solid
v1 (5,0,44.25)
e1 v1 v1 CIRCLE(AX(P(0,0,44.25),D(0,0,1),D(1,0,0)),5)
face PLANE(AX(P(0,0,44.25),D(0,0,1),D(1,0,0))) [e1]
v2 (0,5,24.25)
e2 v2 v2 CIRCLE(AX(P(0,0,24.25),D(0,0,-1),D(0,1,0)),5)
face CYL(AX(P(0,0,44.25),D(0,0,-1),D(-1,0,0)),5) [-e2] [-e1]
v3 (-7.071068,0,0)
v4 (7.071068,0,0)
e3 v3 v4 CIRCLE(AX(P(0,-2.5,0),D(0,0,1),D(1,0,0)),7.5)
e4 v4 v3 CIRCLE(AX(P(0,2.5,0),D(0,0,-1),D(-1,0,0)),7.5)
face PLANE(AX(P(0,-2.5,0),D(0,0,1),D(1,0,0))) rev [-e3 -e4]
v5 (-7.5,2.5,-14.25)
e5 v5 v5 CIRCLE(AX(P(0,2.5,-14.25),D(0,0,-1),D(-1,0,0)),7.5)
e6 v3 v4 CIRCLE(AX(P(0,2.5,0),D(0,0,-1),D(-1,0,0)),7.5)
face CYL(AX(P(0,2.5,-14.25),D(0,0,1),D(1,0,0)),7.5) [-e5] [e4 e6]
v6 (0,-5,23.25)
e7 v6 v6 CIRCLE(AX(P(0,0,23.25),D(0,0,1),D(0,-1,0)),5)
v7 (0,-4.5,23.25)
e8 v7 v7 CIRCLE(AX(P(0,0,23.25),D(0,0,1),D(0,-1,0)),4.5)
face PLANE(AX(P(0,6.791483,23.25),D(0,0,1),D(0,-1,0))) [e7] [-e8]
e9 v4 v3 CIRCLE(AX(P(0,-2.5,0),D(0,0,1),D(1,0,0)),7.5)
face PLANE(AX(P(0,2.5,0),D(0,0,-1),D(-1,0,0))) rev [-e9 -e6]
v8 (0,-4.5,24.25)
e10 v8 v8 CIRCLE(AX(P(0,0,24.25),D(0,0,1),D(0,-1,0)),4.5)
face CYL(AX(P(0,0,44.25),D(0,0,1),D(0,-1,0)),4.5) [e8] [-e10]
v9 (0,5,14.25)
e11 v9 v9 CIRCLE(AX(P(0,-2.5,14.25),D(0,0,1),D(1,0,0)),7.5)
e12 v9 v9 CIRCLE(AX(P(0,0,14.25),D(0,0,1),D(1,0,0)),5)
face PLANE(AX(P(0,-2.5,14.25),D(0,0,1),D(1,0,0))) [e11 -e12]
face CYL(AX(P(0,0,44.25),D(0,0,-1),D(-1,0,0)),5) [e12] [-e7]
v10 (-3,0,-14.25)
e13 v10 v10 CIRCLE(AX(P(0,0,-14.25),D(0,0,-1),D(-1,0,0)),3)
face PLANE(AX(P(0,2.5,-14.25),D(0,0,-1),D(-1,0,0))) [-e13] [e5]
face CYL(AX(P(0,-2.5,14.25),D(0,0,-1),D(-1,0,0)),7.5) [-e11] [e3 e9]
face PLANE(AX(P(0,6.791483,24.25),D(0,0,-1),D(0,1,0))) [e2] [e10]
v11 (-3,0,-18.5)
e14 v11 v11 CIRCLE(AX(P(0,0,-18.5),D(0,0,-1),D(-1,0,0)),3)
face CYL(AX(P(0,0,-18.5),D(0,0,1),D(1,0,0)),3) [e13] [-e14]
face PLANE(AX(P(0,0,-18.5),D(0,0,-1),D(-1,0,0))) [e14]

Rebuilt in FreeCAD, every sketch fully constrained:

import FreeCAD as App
import Part
import Sketcher
from FreeCAD import Vector
Q = App.Units.Quantity

doc = App.newDocument("Part")
params = doc.addObject("Spreadsheet::Sheet", "Params")
for row, (alias, value) in enumerate([
    ("sketch1_diameter", "15 mm"),
    ("pad1_length", "14.25 mm"),
    ("sketch2_diameter", "15 mm"),
    ("pad2_length", "14.25 mm"),
    ("sketch3_diameter", "6 mm"),
    ("sketch4_diameter", "6 mm"),
    ("pad3_length", "4.25 mm"),
    ("sketch5_diameter", "6 mm"),
    ("pad4_length", "28.5 mm"),
    ("sketch6_diameter", "10 mm"),
    ("pad5_length", "30 mm"),
    ("sketch7_height", "1 mm"),
    ("groove_angle", "360 deg"),
], start=1):
    params.set(f"A{row}", alias)
    params.set(f"B{row}", "=" + value)
    params.setAlias(f"B{row}", alias)

body = doc.addObject("PartDesign::Body", "Body")

# Sketch on XY plane
sketch1 = doc.addObject("Sketcher::SketchObject", "Sketch")
body.addObject(sketch1)
sketch1.AttachmentSupport = (doc.XY_Plane, [""])
sketch1.MapMode = "FlatFace"
sketch1.addGeometry(Part.Circle(Vector(0, -2, 0), Vector(0, 0, 1), 8), False)
sketch1.addConstraint(Sketcher.Constraint("PointOnObject", 0, 3, -2))
sketch1.addConstraint(Sketcher.Constraint("Diameter", 0, Q("15 mm")))
sketch1.addConstraint(Sketcher.Constraint("DistanceY", 0, 3, -1, 1, Q("2.5 mm")))
sketch1.setExpression("Constraints[1]", "Params.sketch1_diameter")
pad1 = doc.addObject("PartDesign::Pad", "Pad")
body.addObject(pad1)
pad1.Profile = sketch1
pad1.setExpression("Length", "Params.pad1_length")

# Sketch on XY plane
sketch2 = doc.addObject("Sketcher::SketchObject", "Sketch001")
body.addObject(sketch2)
sketch2.AttachmentSupport = (doc.XY_Plane, [""])
sketch2.MapMode = "FlatFace"
sketch2.addGeometry(Part.Circle(Vector(0, 2, 0), Vector(0, 0, 1), 8), False)
sketch2.addConstraint(Sketcher.Constraint("PointOnObject", 0, 3, -2))
sketch2.addConstraint(Sketcher.Constraint("Diameter", 0, Q("15 mm")))
sketch2.addConstraint(Sketcher.Constraint("DistanceY", -1, 1, 0, 3, Q("2.5 mm")))
sketch2.setExpression("Constraints[1]", "Params.sketch2_diameter")
pad2 = doc.addObject("PartDesign::Pad", "Pad001")
body.addObject(pad2)
pad2.Profile = sketch2
pad2.setExpression("Length", "Params.pad2_length")
pad2.Reversed = True

# Sketch on XY plane
sketch3 = doc.addObject("Sketcher::SketchObject", "Sketch002")
body.addObject(sketch3)
sketch3.AttachmentSupport = (doc.XY_Plane, [""])
sketch3.MapMode = "FlatFace"
sketch3.AttachmentOffset = App.Placement(Vector(0, 0, -14.25), App.Rotation())
sketch3.addGeometry(Part.Circle(Vector(0, 0, 0), Vector(0, 0, 1), 3), False)
sketch3.addConstraint(Sketcher.Constraint("Coincident", 0, 3, -1, 1))
sketch3.addConstraint(Sketcher.Constraint("Diameter", 0, Q("6 mm")))
sketch3.setExpression("Constraints[1]", "Params.sketch3_diameter")
pocket1 = doc.addObject("PartDesign::Pocket", "Pocket")
body.addObject(pocket1)
pocket1.Profile = sketch3
pocket1.Type = "ThroughAll"
pocket1.Reversed = True
body2 = doc.addObject("PartDesign::Body", "Body001")

# Sketch on XY plane
sketch4 = doc.addObject("Sketcher::SketchObject", "Sketch003")
body2.addObject(sketch4)
sketch4.AttachmentSupport = (doc.getObject("XY_Plane001"), [""])
sketch4.MapMode = "FlatFace"
sketch4.AttachmentOffset = App.Placement(Vector(0, 0, -14.25), App.Rotation())
sketch4.addGeometry(Part.Circle(Vector(0, 0, 0), Vector(0, 0, 1), 3), False)
sketch4.addConstraint(Sketcher.Constraint("Coincident", 0, 3, -1, 1))
sketch4.addConstraint(Sketcher.Constraint("Diameter", 0, Q("6 mm")))
sketch4.setExpression("Constraints[1]", "Params.sketch4_diameter")
pad3 = doc.addObject("PartDesign::Pad", "Pad002")
body2.addObject(pad3)
pad3.Profile = sketch4
pad3.setExpression("Length", "Params.pad3_length")
pad3.Reversed = True
body.AllowCompound = True
doc.recompute()

boolean = doc.addObject("PartDesign::Boolean", "Boolean")
body.addObject(boolean)
boolean.Type = "Fuse"
boolean.addObjects([body2])

# Sketch on XY plane
sketch5 = doc.addObject("Sketcher::SketchObject", "Sketch004")
body.addObject(sketch5)
sketch5.AttachmentSupport = (doc.XY_Plane, [""])
sketch5.MapMode = "FlatFace"
sketch5.AttachmentOffset = App.Placement(Vector(0, 0, -14.25), App.Rotation())
sketch5.addGeometry(Part.Circle(Vector(0, 0, 0), Vector(0, 0, 1), 3), False)
sketch5.addConstraint(Sketcher.Constraint("Coincident", 0, 3, -1, 1))
sketch5.addConstraint(Sketcher.Constraint("Diameter", 0, Q("6 mm")))
sketch5.setExpression("Constraints[1]", "Params.sketch5_diameter")
pad4 = doc.addObject("PartDesign::Pad", "Pad003")
body.addObject(pad4)
pad4.Profile = sketch5
pad4.setExpression("Length", "Params.pad4_length")

# Sketch on XY plane
sketch6 = doc.addObject("Sketcher::SketchObject", "Sketch005")
body.addObject(sketch6)
sketch6.AttachmentSupport = (doc.XY_Plane, [""])
sketch6.MapMode = "FlatFace"
sketch6.AttachmentOffset = App.Placement(Vector(0, 0, 14.25), App.Rotation())
sketch6.addGeometry(Part.Circle(Vector(0, 0, 0), Vector(0, 0, 1), 5), False)
sketch6.addConstraint(Sketcher.Constraint("Coincident", 0, 3, -1, 1))
sketch6.addConstraint(Sketcher.Constraint("Diameter", 0, Q("10 mm")))
sketch6.setExpression("Constraints[1]", "Params.sketch6_diameter")
pad5 = doc.addObject("PartDesign::Pad", "Pad004")
body.addObject(pad5)
pad5.Profile = sketch6
pad5.setExpression("Length", "Params.pad5_length")

# Sketch on YZ plane
sketch7 = doc.addObject("Sketcher::SketchObject", "Sketch006")
body.addObject(sketch7)
sketch7.AttachmentSupport = (doc.YZ_Plane, [""])
sketch7.MapMode = "FlatFace"
sketch7.addGeometry(Part.LineSegment(Vector(6.8, 24.2, 0), Vector(4.5, 24.2, 0)), False)
sketch7.addGeometry(Part.LineSegment(Vector(4.5, 24.2, 0), Vector(4.5, 23.2, 0)), False)
sketch7.addGeometry(Part.LineSegment(Vector(4.5, 23.2, 0), Vector(6.8, 23.2, 0)), False)
sketch7.addGeometry(Part.LineSegment(Vector(6.8, 23.2, 0), Vector(6.8, 24.2, 0)), False)
sketch7.addConstraint(Sketcher.Constraint("Coincident", 0, 2, 1, 1))
sketch7.addConstraint(Sketcher.Constraint("Coincident", 1, 2, 2, 1))
sketch7.addConstraint(Sketcher.Constraint("Coincident", 2, 2, 3, 1))
sketch7.addConstraint(Sketcher.Constraint("Coincident", 3, 2, 0, 1))
sketch7.addConstraint(Sketcher.Constraint("Horizontal", 0))
sketch7.addConstraint(Sketcher.Constraint("Vertical", 1))
sketch7.addConstraint(Sketcher.Constraint("Horizontal", 2))
sketch7.addConstraint(Sketcher.Constraint("Vertical", 3))
sketch7.addConstraint(Sketcher.Constraint("DistanceY", 1, 2, 1, 1, Q("1 mm")))
sketch7.addConstraint(Sketcher.Constraint("DistanceX", -1, 1, 0, 2, Q("4.5 mm")))
sketch7.addConstraint(Sketcher.Constraint("DistanceY", -1, 1, 0, 2, Q("24.25 mm")))
sketch7.addConstraint(Sketcher.Constraint("DistanceX", 0, 2, 0, 1, Q("2.291483 mm")))
sketch7.setExpression("Constraints[8]", "Params.sketch7_height")
groove = doc.addObject("PartDesign::Groove", "Groove")
body.addObject(groove)
groove.Profile = sketch7
groove.ReferenceAxis = (sketch7, ["V_Axis"])
groove.setExpression("Angle", "Params.groove_angle")

doc.recompute()
